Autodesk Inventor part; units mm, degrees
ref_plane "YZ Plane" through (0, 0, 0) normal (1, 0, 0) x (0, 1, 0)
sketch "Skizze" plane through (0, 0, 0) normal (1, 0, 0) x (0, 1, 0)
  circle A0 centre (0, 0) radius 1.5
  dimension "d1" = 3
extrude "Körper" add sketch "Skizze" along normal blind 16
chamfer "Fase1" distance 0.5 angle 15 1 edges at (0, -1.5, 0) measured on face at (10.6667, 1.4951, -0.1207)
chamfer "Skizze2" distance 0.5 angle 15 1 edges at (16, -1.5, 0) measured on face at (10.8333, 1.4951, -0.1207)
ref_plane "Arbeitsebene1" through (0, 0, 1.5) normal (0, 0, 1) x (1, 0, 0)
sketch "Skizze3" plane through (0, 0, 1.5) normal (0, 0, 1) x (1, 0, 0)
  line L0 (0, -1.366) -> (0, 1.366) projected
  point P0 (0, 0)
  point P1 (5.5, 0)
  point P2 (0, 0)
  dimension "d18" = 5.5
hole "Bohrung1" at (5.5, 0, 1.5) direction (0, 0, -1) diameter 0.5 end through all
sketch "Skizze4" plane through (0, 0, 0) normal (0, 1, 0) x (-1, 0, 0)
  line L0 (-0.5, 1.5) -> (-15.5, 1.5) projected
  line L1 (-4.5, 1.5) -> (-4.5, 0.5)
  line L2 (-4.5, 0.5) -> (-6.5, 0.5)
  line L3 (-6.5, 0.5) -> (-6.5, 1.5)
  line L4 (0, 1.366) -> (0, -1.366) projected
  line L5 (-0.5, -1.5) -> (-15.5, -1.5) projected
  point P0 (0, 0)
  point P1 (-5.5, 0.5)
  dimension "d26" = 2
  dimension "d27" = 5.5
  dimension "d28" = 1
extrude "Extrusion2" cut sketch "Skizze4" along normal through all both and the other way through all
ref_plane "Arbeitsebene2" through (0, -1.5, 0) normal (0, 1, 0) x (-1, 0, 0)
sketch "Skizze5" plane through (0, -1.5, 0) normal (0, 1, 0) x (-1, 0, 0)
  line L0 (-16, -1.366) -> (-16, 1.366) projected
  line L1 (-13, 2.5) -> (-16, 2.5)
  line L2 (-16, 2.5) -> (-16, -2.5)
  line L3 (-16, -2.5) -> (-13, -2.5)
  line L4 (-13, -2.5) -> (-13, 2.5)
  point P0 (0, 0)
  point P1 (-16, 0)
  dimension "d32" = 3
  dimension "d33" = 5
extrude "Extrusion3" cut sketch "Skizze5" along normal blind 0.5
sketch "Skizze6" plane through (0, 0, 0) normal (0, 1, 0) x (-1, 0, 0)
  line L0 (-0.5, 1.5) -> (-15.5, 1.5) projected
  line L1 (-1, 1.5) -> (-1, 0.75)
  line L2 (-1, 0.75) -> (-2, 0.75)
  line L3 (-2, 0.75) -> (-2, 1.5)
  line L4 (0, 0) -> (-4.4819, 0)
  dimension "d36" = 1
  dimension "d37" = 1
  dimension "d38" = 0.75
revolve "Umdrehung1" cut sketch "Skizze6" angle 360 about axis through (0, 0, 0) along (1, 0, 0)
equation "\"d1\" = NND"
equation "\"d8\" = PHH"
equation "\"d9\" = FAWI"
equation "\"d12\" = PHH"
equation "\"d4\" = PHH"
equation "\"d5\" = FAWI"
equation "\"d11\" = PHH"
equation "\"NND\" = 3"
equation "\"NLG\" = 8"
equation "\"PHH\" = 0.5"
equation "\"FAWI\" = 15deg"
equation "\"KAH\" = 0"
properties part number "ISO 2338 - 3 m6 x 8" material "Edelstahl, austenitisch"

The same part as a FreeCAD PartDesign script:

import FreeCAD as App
import Part
import Sketcher


def edges_at(feature, points):
    """Names of the edges that pass closest to the given points."""
    edges = feature.Shape.Edges
    near = lambda p: min(range(len(edges)), key=lambda i: edges[i].distToShape(Part.Vertex(*p))[0])
    return sorted({f"Edge{near(p) + 1}" for p in points})

doc = App.newDocument("Part")
body = doc.addObject("PartDesign::Body", "Body")

sketch1 = body.newObject("Sketcher::SketchObject", "Sketch")
sketch1.AttachmentSupport = (doc.getObject("YZ_Plane"), [""])
sketch1.MapMode = "FlatFace"
sketch1.addGeometry(Part.Circle(App.Vector(0, 0, 0), App.Vector(0, 0, 1), 1.5), False)
sketch1.addConstraint([
    Sketcher.Constraint("Coincident", 0, 3, -1, 1),
    Sketcher.Constraint("Diameter", 0, 3.0),
])
pad1 = body.newObject("PartDesign::Pad", "Pad")
pad1.Profile = sketch1
pad1.Length = 16
doc.recompute()

chamfer = body.newObject("PartDesign::Chamfer", "Chamfer")
chamfer.Base = (pad1, edges_at(pad1, [(0, -1.5, 0)]))
chamfer.ChamferType = "Distance and Angle"
chamfer.Size = 0.5
chamfer.Angle = 15
doc.recompute()

chamfer2 = body.newObject("PartDesign::Chamfer", "Chamfer001")
chamfer2.Base = (chamfer, edges_at(chamfer, [(16, -1.5, 0)]))
chamfer2.ChamferType = "Distance and Angle"
chamfer2.Size = 0.5
chamfer2.Angle = 15

sketch2 = body.newObject("Sketcher::SketchObject", "Sketch001")
sketch2.AttachmentSupport = (doc.getObject("XY_Plane"), [""])
sketch2.MapMode = "FlatFace"
sketch2.AttachmentOffset = App.Placement(App.Vector(0, 0, 1.5), App.Rotation())
sketch2.addGeometry(Part.Circle(App.Vector(5.5, 0, 0), App.Vector(0, 0, 1), 0.25), False)
sketch2.addConstraint([
    Sketcher.Constraint("PointOnObject", 0, 3, -1),
    Sketcher.Constraint("Diameter", 0, 0.5),
    Sketcher.Constraint("DistanceX", -1, 1, 0, 3, 5.5),
])
doc.recompute()
hole = body.newObject("PartDesign::Hole", "Hole")
hole.Profile = sketch2
hole.ThreadType = "None"
hole.Diameter = 0.5
hole.DepthType = "ThroughAll"

sketch3 = body.newObject("Sketcher::SketchObject", "Sketch002")
sketch3.AttachmentSupport = (doc.getObject("XZ_Plane"), [""])
sketch3.MapMode = "FlatFace"
sketch3.addGeometry([
    Part.LineSegment(App.Vector(4.5, 0.5, 0), App.Vector(4.5, 1.5, 0)),
    Part.LineSegment(App.Vector(4.5, 1.5, 0), App.Vector(6.5, 1.5, 0)),
    Part.LineSegment(App.Vector(6.5, 1.5, 0), App.Vector(6.5, 0.5, 0)),
    Part.LineSegment(App.Vector(6.5, 0.5, 0), App.Vector(4.5, 0.5, 0)),
], False)
sketch3.addConstraint([
    Sketcher.Constraint("Coincident", 0, 2, 1, 1),
    Sketcher.Constraint("Coincident", 1, 2, 2, 1),
    Sketcher.Constraint("Coincident", 2, 2, 3, 1),
    Sketcher.Constraint("Coincident", 3, 2, 0, 1),
    Sketcher.Constraint("Vertical", 0),
    Sketcher.Constraint("Horizontal", 1),
    Sketcher.Constraint("Vertical", 2),
    Sketcher.Constraint("Horizontal", 3),
    Sketcher.Constraint("DistanceX", 1, 1, 1, 2, 2.0),
    Sketcher.Constraint("DistanceY", 0, 1, 0, 2, 1.0),
    Sketcher.Constraint("DistanceX", -1, 1, 0, 2, 4.5),
    Sketcher.Constraint("DistanceY", -1, 1, 0, 2, 1.5),
])
pocket1 = body.newObject("PartDesign::Pocket", "Pocket")
pocket1.Profile = sketch3
pocket1.Type = "ThroughAll"
pocket1.Midplane = True

sketch4 = body.newObject("Sketcher::SketchObject", "Sketch003")
sketch4.AttachmentSupport = (doc.getObject("XZ_Plane"), [""])
sketch4.MapMode = "FlatFace"
sketch4.AttachmentOffset = App.Placement(App.Vector(0, 0, 1.5), App.Rotation())
sketch4.addGeometry([
    Part.LineSegment(App.Vector(16, 2.5, 0), App.Vector(16, -2.5, 0)),
    Part.LineSegment(App.Vector(16, -2.5, 0), App.Vector(13, -2.5, 0)),
    Part.LineSegment(App.Vector(13, -2.5, 0), App.Vector(13, 2.5, 0)),
    Part.LineSegment(App.Vector(13, 2.5, 0), App.Vector(16, 2.5, 0)),
], False)
sketch4.addConstraint([
    Sketcher.Constraint("Coincident", 0, 2, 1, 1),
    Sketcher.Constraint("Coincident", 1, 2, 2, 1),
    Sketcher.Constraint("Coincident", 2, 2, 3, 1),
    Sketcher.Constraint("Coincident", 3, 2, 0, 1),
    Sketcher.Constraint("Vertical", 0),
    Sketcher.Constraint("Horizontal", 1),
    Sketcher.Constraint("Vertical", 2),
    Sketcher.Constraint("Horizontal", 3),
    Sketcher.Constraint("DistanceX", 1, 2, 1, 1, 3.0),
    Sketcher.Constraint("DistanceY", 0, 2, 0, 1, 5.0),
    Sketcher.Constraint("DistanceX", -1, 1, 0, 2, 16.0),
    Sketcher.Constraint("DistanceY", 0, 2, -1, 1, 2.5),
])
pocket2 = body.newObject("PartDesign::Pocket", "Pocket001")
pocket2.Profile = sketch4
pocket2.Length = 0.5

sketch5 = body.newObject("Sketcher::SketchObject", "Sketch004")
sketch5.AttachmentSupport = (doc.getObject("XZ_Plane"), [""])
sketch5.MapMode = "FlatFace"
sketch5.addGeometry([
    Part.LineSegment(App.Vector(1, 0.8, 0), App.Vector(1, 1.5, 0)),
    Part.LineSegment(App.Vector(1, 1.5, 0), App.Vector(2, 1.5, 0)),
    Part.LineSegment(App.Vector(2, 1.5, 0), App.Vector(2, 0.8, 0)),
    Part.LineSegment(App.Vector(2, 0.8, 0), App.Vector(1, 0.8, 0)),
], False)
sketch5.addConstraint([
    Sketcher.Constraint("Coincident", 0, 2, 1, 1),
    Sketcher.Constraint("Coincident", 1, 2, 2, 1),
    Sketcher.Constraint("Coincident", 2, 2, 3, 1),
    Sketcher.Constraint("Coincident", 3, 2, 0, 1),
    Sketcher.Constraint("Vertical", 0),
    Sketcher.Constraint("Horizontal", 1),
    Sketcher.Constraint("Vertical", 2),
    Sketcher.Constraint("Horizontal", 3),
    Sketcher.Constraint("DistanceX", 1, 1, 1, 2, 1.0),
    Sketcher.Constraint("DistanceX", -1, 1, 0, 2, 1.0),
    Sketcher.Constraint("DistanceY", 0, 1, 0, 2, 0.75),
    Sketcher.Constraint("DistanceY", -1, 1, 2, 2, 0.75),
])
groove = body.newObject("PartDesign::Groove", "Groove")
groove.Profile = sketch5
groove.ReferenceAxis = (sketch5, ["H_Axis"])
groove.Angle = 360

doc.recompute()
